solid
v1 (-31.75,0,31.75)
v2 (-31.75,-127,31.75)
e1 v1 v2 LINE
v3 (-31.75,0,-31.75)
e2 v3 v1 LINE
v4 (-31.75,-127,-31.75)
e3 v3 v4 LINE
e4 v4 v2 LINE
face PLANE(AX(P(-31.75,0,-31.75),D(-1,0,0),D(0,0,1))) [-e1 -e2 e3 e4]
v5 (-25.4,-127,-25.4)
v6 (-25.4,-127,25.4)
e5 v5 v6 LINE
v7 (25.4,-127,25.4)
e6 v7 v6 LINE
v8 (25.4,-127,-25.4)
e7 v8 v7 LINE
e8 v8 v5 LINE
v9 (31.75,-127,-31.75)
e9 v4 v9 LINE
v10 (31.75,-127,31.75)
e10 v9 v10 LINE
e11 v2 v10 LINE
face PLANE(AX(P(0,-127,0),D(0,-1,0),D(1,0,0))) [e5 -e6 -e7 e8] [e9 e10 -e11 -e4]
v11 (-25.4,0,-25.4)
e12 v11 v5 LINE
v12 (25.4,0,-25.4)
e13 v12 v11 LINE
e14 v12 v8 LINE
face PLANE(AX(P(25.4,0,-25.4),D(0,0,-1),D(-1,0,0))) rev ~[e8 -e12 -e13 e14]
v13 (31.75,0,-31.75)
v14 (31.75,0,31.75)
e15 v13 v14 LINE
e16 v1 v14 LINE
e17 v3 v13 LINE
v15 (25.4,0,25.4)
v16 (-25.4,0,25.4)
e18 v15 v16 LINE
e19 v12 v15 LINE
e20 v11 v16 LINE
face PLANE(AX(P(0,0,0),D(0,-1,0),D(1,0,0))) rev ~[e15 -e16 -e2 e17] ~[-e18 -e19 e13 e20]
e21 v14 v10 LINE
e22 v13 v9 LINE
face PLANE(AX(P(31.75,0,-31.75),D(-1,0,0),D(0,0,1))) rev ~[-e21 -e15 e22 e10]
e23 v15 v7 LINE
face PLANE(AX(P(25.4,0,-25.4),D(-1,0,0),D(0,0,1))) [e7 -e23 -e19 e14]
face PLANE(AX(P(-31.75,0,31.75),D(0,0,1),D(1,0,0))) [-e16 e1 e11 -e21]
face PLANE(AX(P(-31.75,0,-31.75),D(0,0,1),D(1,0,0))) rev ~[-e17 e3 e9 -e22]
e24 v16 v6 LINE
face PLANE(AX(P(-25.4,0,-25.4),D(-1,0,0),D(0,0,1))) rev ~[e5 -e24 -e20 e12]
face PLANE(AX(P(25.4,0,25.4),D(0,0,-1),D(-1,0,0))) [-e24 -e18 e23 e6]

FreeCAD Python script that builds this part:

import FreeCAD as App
import Part
import Sketcher

V = App.Vector
Q = App.Units.Quantity

doc = App.newDocument("Part")
body = doc.addObject("PartDesign::Body", "Body")

sketch1 = body.newObject("Sketcher::SketchObject", "Sketch")
sketch1.AttachmentSupport = (doc.getObject("XZ_Plane"), [""])
sketch1.MapMode = "FlatFace"
sketch1.addGeometry([
    Part.LineSegment(V(-32, 32, 0), V(-32, -32, 0)),
    Part.LineSegment(V(-32, -32, 0), V(32, -32, 0)),
    Part.LineSegment(V(32, -32, 0), V(32, 32, 0)),
    Part.LineSegment(V(32, 32, 0), V(-32, 32, 0)),
], False)
sketch1.addConstraint([
    Sketcher.Constraint("Coincident", 0, 2, 1, 1),
    Sketcher.Constraint("Coincident", 1, 2, 2, 1),
    Sketcher.Constraint("Coincident", 2, 2, 3, 1),
    Sketcher.Constraint("Coincident", 3, 2, 0, 1),
    Sketcher.Constraint("Vertical", 0),
    Sketcher.Constraint("Horizontal", 1),
    Sketcher.Constraint("Vertical", 2),
    Sketcher.Constraint("Horizontal", 3),
    Sketcher.Constraint("Symmetric", 0, 2, 2, 2, -1, 1),
    Sketcher.Constraint("Equal", 3, 0),
    Sketcher.Constraint("DistanceX", 1, 1, 1, 2, Q("2.5 in")),
])
pad1 = body.newObject("PartDesign::Pad", "Pad")
pad1.Profile = sketch1
pad1.Length = Q("5 in")

sketch2 = body.newObject("Sketcher::SketchObject", "Sketch001")
sketch2.AttachmentSupport = (doc.getObject("XZ_Plane"), [""])
sketch2.MapMode = "FlatFace"
sketch2.addGeometry([
    Part.LineSegment(V(25, 25, 0), V(25, -25, 0)),
    Part.LineSegment(V(25, -25, 0), V(-25, -25, 0)),
    Part.LineSegment(V(-25, -25, 0), V(-25, 25, 0)),
    Part.LineSegment(V(-25, 25, 0), V(25, 25, 0)),
], False)
sketch2.addConstraint([
    Sketcher.Constraint("Coincident", 0, 2, 1, 1),
    Sketcher.Constraint("Coincident", 1, 2, 2, 1),
    Sketcher.Constraint("Coincident", 2, 2, 3, 1),
    Sketcher.Constraint("Coincident", 3, 2, 0, 1),
    Sketcher.Constraint("Vertical", 0),
    Sketcher.Constraint("Horizontal", 1),
    Sketcher.Constraint("Vertical", 2),
    Sketcher.Constraint("Horizontal", 3),
    Sketcher.Constraint("Symmetric", 0, 2, 2, 2, -1, 1),
    Sketcher.Constraint("Equal", 3, 0),
    Sketcher.Constraint("DistanceX", 1, 2, 1, 1, Q("2 in")),
])
pocket1 = body.newObject("PartDesign::Pocket", "Pocket")
pocket1.Profile = sketch2
pocket1.Length = Q("5 in")
pocket1.Reversed = True

doc.recompute()
